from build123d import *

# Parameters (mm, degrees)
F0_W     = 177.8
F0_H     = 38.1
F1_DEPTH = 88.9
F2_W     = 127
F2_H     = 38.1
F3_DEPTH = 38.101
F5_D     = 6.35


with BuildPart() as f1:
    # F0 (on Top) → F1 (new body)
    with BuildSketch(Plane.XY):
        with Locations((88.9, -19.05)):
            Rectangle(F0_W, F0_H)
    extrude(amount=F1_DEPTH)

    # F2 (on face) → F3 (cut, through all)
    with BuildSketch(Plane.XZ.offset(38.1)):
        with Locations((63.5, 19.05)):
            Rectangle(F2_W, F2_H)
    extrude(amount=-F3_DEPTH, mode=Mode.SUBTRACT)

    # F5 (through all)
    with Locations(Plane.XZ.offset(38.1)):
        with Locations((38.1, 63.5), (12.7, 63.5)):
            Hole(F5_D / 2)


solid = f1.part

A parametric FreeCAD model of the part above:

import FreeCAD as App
import Part
import Sketcher
from FreeCAD import Vector
Q = App.Units.Quantity

doc = App.newDocument("Part")
body = doc.addObject("PartDesign::Body", "Body")

# Sketch on XY plane
sketch1 = body.newObject("Sketcher::SketchObject", "Sketch")
sketch1.AttachmentSupport = (doc.getObject("XY_Plane"), [""])
sketch1.MapMode = "FlatFace"
sketch1.addGeometry(Part.LineSegment(Vector(0, 0, 0), Vector(0, -38.1, 0)), False)
sketch1.addGeometry(Part.LineSegment(Vector(0, -38.1, 0), Vector(177.8, -38.1, 0)), False)
sketch1.addGeometry(Part.LineSegment(Vector(177.8, -38.1, 0), Vector(177.8, 0, 0)), False)
sketch1.addGeometry(Part.LineSegment(Vector(177.8, 0, 0), Vector(0, 0, 0)), False)
sketch1.addConstraint(Sketcher.Constraint("Coincident", 0, 2, 1, 1))
sketch1.addConstraint(Sketcher.Constraint("Coincident", 1, 2, 2, 1))
sketch1.addConstraint(Sketcher.Constraint("Coincident", 2, 2, 3, 1))
sketch1.addConstraint(Sketcher.Constraint("Coincident", 3, 2, 0, 1))
sketch1.addConstraint(Sketcher.Constraint("Vertical", 0))
sketch1.addConstraint(Sketcher.Constraint("Horizontal", 1))
sketch1.addConstraint(Sketcher.Constraint("Vertical", 2))
sketch1.addConstraint(Sketcher.Constraint("Horizontal", 3))
sketch1.addConstraint(Sketcher.Constraint("Coincident", 3, 2, -1, 1))
sketch1.addConstraint(Sketcher.Constraint("DistanceX", 1, 1, 1, 2, Q("7 in")))
sketch1.addConstraint(Sketcher.Constraint("DistanceY", 0, 2, 0, 1, Q("1.5 in")))
pad1 = body.newObject("PartDesign::Pad", "Pad")
pad1.Profile = sketch1
pad1.Length = Q("3.5 in")

# Sketch on XZ plane
sketch2 = body.newObject("Sketcher::SketchObject", "Sketch001")
sketch2.AttachmentSupport = (doc.getObject("XZ_Plane"), [""])
sketch2.MapMode = "FlatFace"
sketch2.AttachmentOffset = App.Placement(Vector(0, 0, 1.5 * 25.4), App.Rotation())
sketch2.addGeometry(Part.LineSegment(Vector(0, 38.1, 0), Vector(0, 0, 0)), False)
sketch2.addGeometry(Part.LineSegment(Vector(0, 0, 0), Vector(127, 0, 0)), False)
sketch2.addGeometry(Part.LineSegment(Vector(127, 0, 0), Vector(127, 38.1, 0)), False)
sketch2.addGeometry(Part.LineSegment(Vector(127, 38.1, 0), Vector(0, 38.1, 0)), False)
sketch2.addConstraint(Sketcher.Constraint("Coincident", 0, 2, 1, 1))
sketch2.addConstraint(Sketcher.Constraint("Coincident", 1, 2, 2, 1))
sketch2.addConstraint(Sketcher.Constraint("Coincident", 2, 2, 3, 1))
sketch2.addConstraint(Sketcher.Constraint("Coincident", 3, 2, 0, 1))
sketch2.addConstraint(Sketcher.Constraint("Vertical", 0))
sketch2.addConstraint(Sketcher.Constraint("Horizontal", 1))
sketch2.addConstraint(Sketcher.Constraint("Vertical", 2))
sketch2.addConstraint(Sketcher.Constraint("Horizontal", 3))
sketch2.addConstraint(Sketcher.Constraint("Coincident", 0, 2, -1, 1))
sketch2.addConstraint(Sketcher.Constraint("DistanceX", 1, 1, 1, 2, Q("5 in")))
sketch2.addConstraint(Sketcher.Constraint("DistanceY", 0, 2, 0, 1, Q("1.5 in")))
pocket1 = body.newObject("PartDesign::Pocket", "Pocket")
pocket1.Profile = sketch2
pocket1.Type = "ThroughAll"

# Sketch on XZ plane
sketch3 = body.newObject("Sketcher::SketchObject", "Sketch002")
sketch3.AttachmentSupport = (doc.getObject("XZ_Plane"), [""])
sketch3.MapMode = "FlatFace"
sketch3.AttachmentOffset = App.Placement(Vector(0, 0, 1.5 * 25.4), App.Rotation())
sketch3.addGeometry(Part.Circle(Vector(38.1, 63.5, 0), Vector(0, 0, 1), 3.175), False)
sketch3.addGeometry(Part.Circle(Vector(12.7, 63.5, 0), Vector(0, 0, 1), 3.175), False)
sketch3.addConstraint(Sketcher.Constraint("Equal", 0, 1))
sketch3.addConstraint(Sketcher.Constraint("Horizontal", 0, 3, 1, 3))
sketch3.addConstraint(Sketcher.Constraint("Diameter", 0, Q("0.25 in")))
sketch3.addConstraint(Sketcher.Constraint("DistanceX", 1, 3, 0, 3, Q("1 in")))
sketch3.addConstraint(Sketcher.Constraint("DistanceX", -1, 1, 0, 3, Q("1.5 in")))
sketch3.addConstraint(Sketcher.Constraint("DistanceY", -1, 1, 0, 3, Q("2.5 in")))
doc.recompute()
hole = body.newObject("PartDesign::Hole", "Hole")
hole.Profile = sketch3
hole.ThreadType = "None"
hole.Diameter = Q("0.25 in")
hole.DepthType = "ThroughAll"

doc.recompute()
